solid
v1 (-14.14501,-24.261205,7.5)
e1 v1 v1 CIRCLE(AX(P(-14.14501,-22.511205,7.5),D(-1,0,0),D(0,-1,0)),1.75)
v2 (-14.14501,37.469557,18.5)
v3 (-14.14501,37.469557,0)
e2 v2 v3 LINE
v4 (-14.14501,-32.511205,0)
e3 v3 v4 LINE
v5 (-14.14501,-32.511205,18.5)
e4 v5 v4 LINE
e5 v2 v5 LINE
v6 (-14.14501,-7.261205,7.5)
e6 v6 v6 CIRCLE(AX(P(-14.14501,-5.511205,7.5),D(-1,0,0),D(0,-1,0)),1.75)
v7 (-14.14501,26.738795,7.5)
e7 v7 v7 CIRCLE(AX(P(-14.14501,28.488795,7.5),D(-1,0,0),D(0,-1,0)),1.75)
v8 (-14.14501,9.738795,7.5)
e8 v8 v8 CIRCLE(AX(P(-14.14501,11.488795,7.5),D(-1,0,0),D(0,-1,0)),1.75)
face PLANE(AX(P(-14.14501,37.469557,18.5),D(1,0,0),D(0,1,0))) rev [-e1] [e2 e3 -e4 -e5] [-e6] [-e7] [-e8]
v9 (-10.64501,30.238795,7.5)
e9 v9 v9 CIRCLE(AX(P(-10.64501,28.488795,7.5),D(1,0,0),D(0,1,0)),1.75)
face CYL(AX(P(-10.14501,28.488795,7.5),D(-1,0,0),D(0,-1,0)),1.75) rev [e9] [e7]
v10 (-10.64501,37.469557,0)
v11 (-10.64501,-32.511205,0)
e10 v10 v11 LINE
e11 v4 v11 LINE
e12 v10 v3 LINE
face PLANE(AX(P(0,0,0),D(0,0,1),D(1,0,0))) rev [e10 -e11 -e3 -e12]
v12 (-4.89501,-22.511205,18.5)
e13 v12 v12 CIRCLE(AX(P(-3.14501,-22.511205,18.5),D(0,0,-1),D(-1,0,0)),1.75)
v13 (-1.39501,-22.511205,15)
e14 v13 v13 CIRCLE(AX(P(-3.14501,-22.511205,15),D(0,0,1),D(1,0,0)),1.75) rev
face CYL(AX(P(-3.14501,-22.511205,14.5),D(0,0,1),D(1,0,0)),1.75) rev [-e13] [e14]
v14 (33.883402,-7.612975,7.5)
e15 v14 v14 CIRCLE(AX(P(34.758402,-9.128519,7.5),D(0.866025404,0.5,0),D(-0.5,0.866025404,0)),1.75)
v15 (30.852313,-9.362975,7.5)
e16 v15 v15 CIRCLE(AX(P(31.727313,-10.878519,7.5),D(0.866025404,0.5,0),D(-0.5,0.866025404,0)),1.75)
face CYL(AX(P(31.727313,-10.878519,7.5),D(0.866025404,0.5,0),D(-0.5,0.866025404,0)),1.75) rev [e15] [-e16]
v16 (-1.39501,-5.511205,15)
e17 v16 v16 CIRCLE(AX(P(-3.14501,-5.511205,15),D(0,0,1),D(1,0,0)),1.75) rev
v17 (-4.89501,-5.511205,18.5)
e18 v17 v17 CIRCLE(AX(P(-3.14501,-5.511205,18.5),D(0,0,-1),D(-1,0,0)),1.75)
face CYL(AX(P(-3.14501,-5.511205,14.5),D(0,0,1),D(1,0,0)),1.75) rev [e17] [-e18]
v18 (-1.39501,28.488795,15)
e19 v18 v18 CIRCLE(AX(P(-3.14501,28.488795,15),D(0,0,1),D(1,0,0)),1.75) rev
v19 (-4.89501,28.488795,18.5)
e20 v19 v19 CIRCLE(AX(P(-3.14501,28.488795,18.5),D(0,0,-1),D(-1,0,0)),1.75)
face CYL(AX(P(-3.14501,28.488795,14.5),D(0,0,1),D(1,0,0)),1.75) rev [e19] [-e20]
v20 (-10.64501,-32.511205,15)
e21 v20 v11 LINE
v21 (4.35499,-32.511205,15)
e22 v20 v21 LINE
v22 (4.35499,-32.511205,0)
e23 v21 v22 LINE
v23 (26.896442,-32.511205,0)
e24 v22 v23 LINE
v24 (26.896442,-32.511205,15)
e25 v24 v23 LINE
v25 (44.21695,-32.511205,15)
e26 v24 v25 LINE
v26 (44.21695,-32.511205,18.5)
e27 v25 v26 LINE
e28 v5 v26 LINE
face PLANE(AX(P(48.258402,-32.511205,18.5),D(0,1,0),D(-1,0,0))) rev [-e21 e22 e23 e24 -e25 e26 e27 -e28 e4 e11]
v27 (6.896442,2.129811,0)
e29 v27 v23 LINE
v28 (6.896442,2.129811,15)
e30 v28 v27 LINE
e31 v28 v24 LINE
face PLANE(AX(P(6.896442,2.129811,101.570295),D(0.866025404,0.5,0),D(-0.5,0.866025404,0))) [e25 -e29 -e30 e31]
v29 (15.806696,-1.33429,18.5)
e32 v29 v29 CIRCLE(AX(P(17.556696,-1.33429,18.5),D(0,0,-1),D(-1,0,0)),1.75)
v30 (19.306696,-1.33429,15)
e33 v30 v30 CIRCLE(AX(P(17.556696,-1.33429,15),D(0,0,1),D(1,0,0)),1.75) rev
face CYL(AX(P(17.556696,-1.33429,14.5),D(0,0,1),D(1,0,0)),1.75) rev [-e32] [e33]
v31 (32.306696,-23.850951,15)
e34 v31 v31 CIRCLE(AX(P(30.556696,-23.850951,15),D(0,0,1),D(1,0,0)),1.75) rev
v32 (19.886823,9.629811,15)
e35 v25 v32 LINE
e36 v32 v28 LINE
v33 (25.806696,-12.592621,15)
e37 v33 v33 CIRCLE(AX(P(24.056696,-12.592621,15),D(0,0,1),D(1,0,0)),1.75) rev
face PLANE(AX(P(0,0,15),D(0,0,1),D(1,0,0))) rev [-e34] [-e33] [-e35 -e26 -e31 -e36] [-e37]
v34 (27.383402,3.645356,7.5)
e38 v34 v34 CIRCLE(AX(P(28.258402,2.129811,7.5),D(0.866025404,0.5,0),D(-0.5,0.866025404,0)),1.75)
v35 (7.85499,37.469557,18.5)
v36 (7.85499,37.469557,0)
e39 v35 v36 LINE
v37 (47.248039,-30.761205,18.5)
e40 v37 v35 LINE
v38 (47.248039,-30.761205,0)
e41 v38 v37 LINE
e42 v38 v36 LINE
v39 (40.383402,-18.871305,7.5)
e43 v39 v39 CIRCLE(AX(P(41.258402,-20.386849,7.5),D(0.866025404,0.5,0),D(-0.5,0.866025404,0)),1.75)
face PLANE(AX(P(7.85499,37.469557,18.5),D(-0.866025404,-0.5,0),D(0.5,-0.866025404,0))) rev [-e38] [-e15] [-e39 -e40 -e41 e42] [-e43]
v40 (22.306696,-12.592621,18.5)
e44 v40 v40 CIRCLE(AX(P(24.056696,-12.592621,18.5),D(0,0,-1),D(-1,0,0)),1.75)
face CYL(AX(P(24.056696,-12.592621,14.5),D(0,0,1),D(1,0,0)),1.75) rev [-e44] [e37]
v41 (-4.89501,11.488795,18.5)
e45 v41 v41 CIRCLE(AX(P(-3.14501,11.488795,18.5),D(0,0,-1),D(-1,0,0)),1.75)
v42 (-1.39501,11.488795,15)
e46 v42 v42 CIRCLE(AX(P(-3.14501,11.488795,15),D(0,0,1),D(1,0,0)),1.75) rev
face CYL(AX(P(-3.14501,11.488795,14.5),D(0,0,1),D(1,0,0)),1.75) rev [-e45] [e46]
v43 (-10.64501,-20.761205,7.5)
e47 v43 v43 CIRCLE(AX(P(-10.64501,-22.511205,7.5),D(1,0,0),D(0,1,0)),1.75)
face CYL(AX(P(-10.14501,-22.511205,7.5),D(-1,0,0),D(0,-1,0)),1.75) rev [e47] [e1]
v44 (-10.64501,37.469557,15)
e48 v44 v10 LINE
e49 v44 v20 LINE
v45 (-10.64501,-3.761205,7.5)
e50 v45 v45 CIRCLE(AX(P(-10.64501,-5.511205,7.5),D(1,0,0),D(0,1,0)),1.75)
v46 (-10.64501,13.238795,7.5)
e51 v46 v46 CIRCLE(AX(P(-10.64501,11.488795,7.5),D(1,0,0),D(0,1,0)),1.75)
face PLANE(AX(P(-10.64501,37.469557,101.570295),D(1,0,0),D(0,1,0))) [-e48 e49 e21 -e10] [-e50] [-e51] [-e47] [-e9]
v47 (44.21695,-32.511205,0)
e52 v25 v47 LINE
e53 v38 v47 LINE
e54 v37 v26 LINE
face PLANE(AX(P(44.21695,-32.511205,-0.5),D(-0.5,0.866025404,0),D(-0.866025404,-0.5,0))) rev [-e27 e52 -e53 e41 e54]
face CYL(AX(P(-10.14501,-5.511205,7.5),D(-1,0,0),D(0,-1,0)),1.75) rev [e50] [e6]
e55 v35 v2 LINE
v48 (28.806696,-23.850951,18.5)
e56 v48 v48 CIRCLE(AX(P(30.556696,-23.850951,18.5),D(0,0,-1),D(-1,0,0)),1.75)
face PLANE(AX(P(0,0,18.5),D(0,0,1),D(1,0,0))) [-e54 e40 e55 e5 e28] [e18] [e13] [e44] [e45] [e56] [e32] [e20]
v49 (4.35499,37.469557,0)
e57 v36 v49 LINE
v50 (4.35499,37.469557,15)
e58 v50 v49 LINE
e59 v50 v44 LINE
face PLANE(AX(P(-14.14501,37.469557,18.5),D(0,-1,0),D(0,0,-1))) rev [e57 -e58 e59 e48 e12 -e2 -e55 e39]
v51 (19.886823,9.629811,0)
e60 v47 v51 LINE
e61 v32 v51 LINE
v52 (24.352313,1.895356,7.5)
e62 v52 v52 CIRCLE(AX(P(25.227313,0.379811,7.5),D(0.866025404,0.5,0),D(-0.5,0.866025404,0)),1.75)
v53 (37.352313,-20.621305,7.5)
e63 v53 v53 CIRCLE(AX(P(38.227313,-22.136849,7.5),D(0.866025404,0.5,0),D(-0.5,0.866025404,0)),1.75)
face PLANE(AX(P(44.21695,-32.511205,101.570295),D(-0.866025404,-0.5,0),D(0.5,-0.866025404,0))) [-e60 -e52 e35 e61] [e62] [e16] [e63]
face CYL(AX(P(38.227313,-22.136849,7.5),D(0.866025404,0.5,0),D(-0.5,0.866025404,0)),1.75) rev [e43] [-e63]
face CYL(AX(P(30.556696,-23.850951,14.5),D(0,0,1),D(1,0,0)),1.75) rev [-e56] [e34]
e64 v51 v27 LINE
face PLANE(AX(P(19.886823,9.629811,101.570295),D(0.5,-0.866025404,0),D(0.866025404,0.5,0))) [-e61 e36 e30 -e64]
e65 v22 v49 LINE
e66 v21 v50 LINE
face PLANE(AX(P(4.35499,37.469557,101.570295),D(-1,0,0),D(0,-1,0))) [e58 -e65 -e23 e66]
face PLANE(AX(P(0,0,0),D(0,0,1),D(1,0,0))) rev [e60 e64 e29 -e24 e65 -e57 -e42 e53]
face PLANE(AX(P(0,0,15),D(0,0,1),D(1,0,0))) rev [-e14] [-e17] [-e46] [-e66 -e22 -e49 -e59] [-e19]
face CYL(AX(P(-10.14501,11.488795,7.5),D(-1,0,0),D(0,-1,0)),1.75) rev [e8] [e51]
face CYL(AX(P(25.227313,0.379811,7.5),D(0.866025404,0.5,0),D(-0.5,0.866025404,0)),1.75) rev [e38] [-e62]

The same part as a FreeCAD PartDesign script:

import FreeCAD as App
import Part
import Sketcher
from FreeCAD import Vector
Q = App.Units.Quantity

doc = App.newDocument("Part")
body = doc.addObject("PartDesign::Body", "Body")

# Sketch on XY plane
sketch1 = body.newObject("Sketcher::SketchObject", "Sketch")
sketch1.AttachmentSupport = (doc.getObject("XY_Plane"), [""])
sketch1.MapMode = "FlatFace"
sketch1.addGeometry([
    Part.LineSegment(Vector(48, -33, 0), Vector(8, 37, 0)),
    Part.LineSegment(Vector(8, 37, 0), Vector(-14, 37, 0)),
    Part.LineSegment(Vector(-14, 37, 0), Vector(-14, -33, 0)),
    Part.LineSegment(Vector(-14, -33, 0), Vector(48, -33, 0)),
], False)
sketch1.addConstraint([
    Sketcher.Constraint("Coincident", 0, 2, 1, 1),
    Sketcher.Constraint("Coincident", 1, 2, 2, 1),
    Sketcher.Constraint("Coincident", 2, 2, 3, 1),
    Sketcher.Constraint("Coincident", 3, 2, 0, 1),
    Sketcher.Constraint("Horizontal", 1),
    Sketcher.Constraint("Vertical", 2),
    Sketcher.Constraint("Horizontal", 3),
    Sketcher.Constraint("DistanceX", 1, 2, 1, 1, Q("22 mm")),
    Sketcher.Constraint("Angle", 0, Q("120 deg")),
    Sketcher.Constraint("DistanceX", 3, 1, 3, 2, Q("62.403412 mm")),
    Sketcher.Constraint("DistanceX", -1, 1, 3, 2, Q("48.258402 mm")),
    Sketcher.Constraint("DistanceY", -1, 1, 0, 2, Q("37.469557 mm")),
])
pad1 = body.newObject("PartDesign::Pad", "Pad")
pad1.Profile = sketch1
pad1.Length = 18.5

# Sketch on XY plane
sketch2 = body.newObject("Sketcher::SketchObject", "Sketch001")
sketch2.AttachmentSupport = (doc.getObject("XY_Plane"), [""])
sketch2.MapMode = "FlatFace"
sketch2.addGeometry([
    Part.LineSegment(Vector(-11, 37, 0), Vector(-11, -33, 0)),  # 0
    Part.LineSegment(Vector(-11, -33, 0), Vector(4, -33, 0)),  # 1
    Part.LineSegment(Vector(4, -33, 0), Vector(4, 37, 0)),  # 2
    Part.LineSegment(Vector(4, 37, 0), Vector(-11, 37, 0)),  # 3
    Part.LineSegment(Vector(44, -33, 0), Vector(20, 10, 0)),  # 4
    Part.LineSegment(Vector(20, 10, 0), Vector(7, 2, 0)),  # 5
    Part.LineSegment(Vector(7, 2, 0), Vector(27, -33, 0)),  # 6
    Part.LineSegment(Vector(27, -33, 0), Vector(44, -33, 0)),  # 7
], False)
sketch2.addConstraint([
    Sketcher.Constraint("Coincident", 0, 2, 1, 1),
    Sketcher.Constraint("Coincident", 1, 2, 2, 1),
    Sketcher.Constraint("Coincident", 2, 2, 3, 1),
    Sketcher.Constraint("Coincident", 3, 2, 0, 1),
    Sketcher.Constraint("Coincident", 4, 2, 5, 1),
    Sketcher.Constraint("Coincident", 5, 2, 6, 1),
    Sketcher.Constraint("Coincident", 6, 2, 7, 1),
    Sketcher.Constraint("Coincident", 7, 2, 4, 1),
    Sketcher.Constraint("Vertical", 0),
    Sketcher.Constraint("Horizontal", 1),
    Sketcher.Constraint("Vertical", 2),
    Sketcher.Constraint("Horizontal", 3),
    Sketcher.Constraint("Horizontal", 7),
    Sketcher.Constraint("Perpendicular", 4, 5),
    Sketcher.Constraint("Perpendicular", 5, 6),
    Sketcher.Constraint("Horizontal", 1, 2, 6, 2),
    Sketcher.Constraint("DistanceX", 1, 1, 1, 2, Q("15 mm")),
    Sketcher.Constraint("Angle", 4, Q("120 deg")),
    Sketcher.Constraint("Distance", 5, Q("15 mm")),
    Sketcher.Constraint("Distance", 6, Q("40 mm")),
    Sketcher.Constraint("DistanceY", 0, 2, 0, 1, Q("69.980762 mm")),
    Sketcher.Constraint("DistanceX", 0, 2, -1, 1, Q("10.64501 mm")),
    Sketcher.Constraint("DistanceY", -1, 1, 4, 2, Q("9.629811 mm")),
    Sketcher.Constraint("DistanceX", -1, 1, 5, 2, Q("6.896442 mm")),
])
pocket1 = body.newObject("PartDesign::Pocket", "Pocket")
pocket1.Profile = sketch2
pocket1.Length = 15
pocket1.Reversed = True

# Sketch on an angled plane
sketch3 = body.newObject("Sketcher::SketchObject", "Sketch002")
sketch3.Placement = App.Placement(Vector(22.116037, 12.7687, 0), App.Rotation(Vector(0, 0, -1), Vector(-0.5, 0.866025404, 0), Vector(0.866025404, 0.5, 0), "ZXY"))
sketch3.addGeometry([
    Part.Circle(Vector(-7.5, -38.3, 0), Vector(0, 0, 1), 1.8),
    Part.Circle(Vector(-7.5, -25.3, 0), Vector(0, 0, 1), 1.8),
    Part.Circle(Vector(-7.5, -12.3, 0), Vector(0, 0, 1), 1.8),
], False)
sketch3.addConstraint([
    Sketcher.Constraint("Equal", 0, 1),
    Sketcher.Constraint("Equal", 1, 2),
    Sketcher.Constraint("Vertical", 0, 3, 1, 3),
    Sketcher.Constraint("Vertical", 1, 3, 2, 3),
    Sketcher.Constraint("Diameter", 0, Q("3.5 mm")),
    Sketcher.Constraint("DistanceY", 0, 3, 1, 3, Q("13 mm")),
    Sketcher.Constraint("DistanceY", 1, 3, 2, 3, Q("13 mm")),
    Sketcher.Constraint("DistanceX", 0, 3, -1, 1, Q("7.5 mm")),
    Sketcher.Constraint("DistanceY", 0, 3, -1, 1, Q("38.28473 mm")),
])
pocket2 = body.newObject("PartDesign::Pocket", "Pocket001")
pocket2.Profile = sketch3
pocket2.Length = 3.5

# Sketch on XY plane
sketch4 = body.newObject("Sketcher::SketchObject", "Sketch003")
sketch4.AttachmentSupport = (doc.getObject("XY_Plane"), [""])
sketch4.MapMode = "FlatFace"
sketch4.AttachmentOffset = App.Placement(Vector(0, 0, 18.5), App.Rotation())
sketch4.addGeometry([
    Part.Circle(Vector(30.6, -23.9, 0), Vector(0, 0, 1), 1.8),  # 0
    Part.Circle(Vector(24.1, -12.6, 0), Vector(0, 0, 1), 1.8),  # 1
    Part.Circle(Vector(17.6, -1.3, 0), Vector(0, 0, 1), 1.8),  # 2
    Part.Circle(Vector(-3.1, -5.5, 0), Vector(0, 0, 1), 1.8),  # 3
    Part.Circle(Vector(-3.1, 11.5, 0), Vector(0, 0, 1), 1.8),  # 4
    Part.Circle(Vector(-3.1, 28.5, 0), Vector(0, 0, 1), 1.8),  # 5
    Part.Circle(Vector(-3.1, -22.5, 0), Vector(0, 0, 1), 1.8),  # 6
], False)
sketch4.addConstraint([
    Sketcher.Constraint("Equal", 0, 1),
    Sketcher.Constraint("Equal", 1, 2),
    Sketcher.Constraint("Equal", 2, 3),
    Sketcher.Constraint("Equal", 3, 4),
    Sketcher.Constraint("Equal", 4, 5),
    Sketcher.Constraint("Equal", 5, 6),
    Sketcher.Constraint("Vertical", 3, 3, 4, 3),
    Sketcher.Constraint("Vertical", 4, 3, 5, 3),
    Sketcher.Constraint("Vertical", 5, 3, 6, 3),
    Sketcher.Constraint("Diameter", 0, Q("3.5 mm")),
    Sketcher.Constraint("DistanceX", 2, 3, 0, 3, Q("13 mm")),
    Sketcher.Constraint("DistanceY", 3, 3, 4, 3, Q("17 mm")),
    Sketcher.Constraint("DistanceY", 4, 3, 5, 3, Q("17 mm")),
    Sketcher.Constraint("DistanceY", 6, 3, 3, 3, Q("17 mm")),
    Sketcher.Constraint("DistanceX", 1, 3, 0, 3, Q("6.5 mm")),
    Sketcher.Constraint("DistanceY", 0, 3, -1, 1, Q("23.850951 mm")),
    Sketcher.Constraint("DistanceY", 1, 3, -1, 1, Q("12.592621 mm")),
    Sketcher.Constraint("DistanceY", 2, 3, -1, 1, Q("1.33429 mm")),
    Sketcher.Constraint("DistanceX", 3, 3, -1, 1, Q("3.14501 mm")),
    Sketcher.Constraint("DistanceX", -1, 1, 0, 3, Q("30.556696 mm")),
    Sketcher.Constraint("DistanceY", 3, 3, -1, 1, Q("5.511205 mm")),
])
pocket3 = body.newObject("PartDesign::Pocket", "Pocket002")
pocket3.Profile = sketch4
pocket3.Length = 4

# Sketch on YZ plane
sketch5 = body.newObject("Sketcher::SketchObject", "Sketch004")
sketch5.AttachmentSupport = (doc.getObject("YZ_Plane"), [""])
sketch5.MapMode = "FlatFace"
sketch5.AttachmentOffset = App.Placement(Vector(0, 0, -14.14501), App.Rotation())
sketch5.addGeometry([
    Part.Circle(Vector(-22.5, 7.5, 0), Vector(0, 0, 1), 1.8),
    Part.Circle(Vector(-5.5, 7.5, 0), Vector(0, 0, 1), 1.8),
    Part.Circle(Vector(11.5, 7.5, 0), Vector(0, 0, 1), 1.8),
    Part.Circle(Vector(28.5, 7.5, 0), Vector(0, 0, 1), 1.8),
], False)
sketch5.addConstraint([
    Sketcher.Constraint("Equal", 0, 1),
    Sketcher.Constraint("Equal", 1, 2),
    Sketcher.Constraint("Equal", 2, 3),
    Sketcher.Constraint("Horizontal", 0, 3, 1, 3),
    Sketcher.Constraint("Horizontal", 1, 3, 2, 3),
    Sketcher.Constraint("Horizontal", 2, 3, 3, 3),
    Sketcher.Constraint("Diameter", 0, Q("3.5 mm")),
    Sketcher.Constraint("DistanceX", 0, 3, 1, 3, Q("17 mm")),
    Sketcher.Constraint("DistanceX", 1, 3, 2, 3, Q("17 mm")),
    Sketcher.Constraint("DistanceX", 2, 3, 3, 3, Q("17 mm")),
    Sketcher.Constraint("DistanceY", -1, 1, 0, 3, Q("7.5 mm")),
    Sketcher.Constraint("DistanceX", 0, 3, -1, 1, Q("22.511205 mm")),
])
pocket4 = body.newObject("PartDesign::Pocket", "Pocket003")
pocket4.Profile = sketch5
pocket4.Length = 4
pocket4.Reversed = True

# Sketch on XY plane
sketch6 = body.newObject("Sketcher::SketchObject", "Sketch005")
sketch6.AttachmentSupport = (doc.getObject("XY_Plane"), [""])
sketch6.MapMode = "FlatFace"
sketch6.AttachmentOffset = App.Placement(Vector(0, 0, 18.5), App.Rotation())
sketch6.addGeometry([
    Part.LineSegment(Vector(47.2, -30.8, 0), Vector(44.2, -32.5, 0)),
    Part.LineSegment(Vector(44.2, -32.5, 0), Vector(48.3, -32.5, 0)),
    Part.LineSegment(Vector(48.3, -32.5, 0), Vector(47.2, -30.8, 0)),
], False)
sketch6.addConstraint([
    Sketcher.Constraint("Coincident", 0, 2, 1, 1),
    Sketcher.Constraint("Coincident", 1, 2, 2, 1),
    Sketcher.Constraint("Coincident", 2, 2, 0, 1),
    Sketcher.Constraint("Horizontal", 1),
    Sketcher.Constraint("Perpendicular", 0, 2),
    Sketcher.Constraint("Angle", 0, Q("-150 deg")),
    Sketcher.Constraint("Distance", 0, Q("3.5 mm")),
    Sketcher.Constraint("DistanceX", -1, 1, 1, 2, Q("48.258402 mm")),
    Sketcher.Constraint("DistanceY", 0, 2, -1, 1, Q("32.511205 mm")),
])
pocket5 = body.newObject("PartDesign::Pocket", "Pocket004")
pocket5.Profile = sketch6
pocket5.Length = 19

doc.recompute()
